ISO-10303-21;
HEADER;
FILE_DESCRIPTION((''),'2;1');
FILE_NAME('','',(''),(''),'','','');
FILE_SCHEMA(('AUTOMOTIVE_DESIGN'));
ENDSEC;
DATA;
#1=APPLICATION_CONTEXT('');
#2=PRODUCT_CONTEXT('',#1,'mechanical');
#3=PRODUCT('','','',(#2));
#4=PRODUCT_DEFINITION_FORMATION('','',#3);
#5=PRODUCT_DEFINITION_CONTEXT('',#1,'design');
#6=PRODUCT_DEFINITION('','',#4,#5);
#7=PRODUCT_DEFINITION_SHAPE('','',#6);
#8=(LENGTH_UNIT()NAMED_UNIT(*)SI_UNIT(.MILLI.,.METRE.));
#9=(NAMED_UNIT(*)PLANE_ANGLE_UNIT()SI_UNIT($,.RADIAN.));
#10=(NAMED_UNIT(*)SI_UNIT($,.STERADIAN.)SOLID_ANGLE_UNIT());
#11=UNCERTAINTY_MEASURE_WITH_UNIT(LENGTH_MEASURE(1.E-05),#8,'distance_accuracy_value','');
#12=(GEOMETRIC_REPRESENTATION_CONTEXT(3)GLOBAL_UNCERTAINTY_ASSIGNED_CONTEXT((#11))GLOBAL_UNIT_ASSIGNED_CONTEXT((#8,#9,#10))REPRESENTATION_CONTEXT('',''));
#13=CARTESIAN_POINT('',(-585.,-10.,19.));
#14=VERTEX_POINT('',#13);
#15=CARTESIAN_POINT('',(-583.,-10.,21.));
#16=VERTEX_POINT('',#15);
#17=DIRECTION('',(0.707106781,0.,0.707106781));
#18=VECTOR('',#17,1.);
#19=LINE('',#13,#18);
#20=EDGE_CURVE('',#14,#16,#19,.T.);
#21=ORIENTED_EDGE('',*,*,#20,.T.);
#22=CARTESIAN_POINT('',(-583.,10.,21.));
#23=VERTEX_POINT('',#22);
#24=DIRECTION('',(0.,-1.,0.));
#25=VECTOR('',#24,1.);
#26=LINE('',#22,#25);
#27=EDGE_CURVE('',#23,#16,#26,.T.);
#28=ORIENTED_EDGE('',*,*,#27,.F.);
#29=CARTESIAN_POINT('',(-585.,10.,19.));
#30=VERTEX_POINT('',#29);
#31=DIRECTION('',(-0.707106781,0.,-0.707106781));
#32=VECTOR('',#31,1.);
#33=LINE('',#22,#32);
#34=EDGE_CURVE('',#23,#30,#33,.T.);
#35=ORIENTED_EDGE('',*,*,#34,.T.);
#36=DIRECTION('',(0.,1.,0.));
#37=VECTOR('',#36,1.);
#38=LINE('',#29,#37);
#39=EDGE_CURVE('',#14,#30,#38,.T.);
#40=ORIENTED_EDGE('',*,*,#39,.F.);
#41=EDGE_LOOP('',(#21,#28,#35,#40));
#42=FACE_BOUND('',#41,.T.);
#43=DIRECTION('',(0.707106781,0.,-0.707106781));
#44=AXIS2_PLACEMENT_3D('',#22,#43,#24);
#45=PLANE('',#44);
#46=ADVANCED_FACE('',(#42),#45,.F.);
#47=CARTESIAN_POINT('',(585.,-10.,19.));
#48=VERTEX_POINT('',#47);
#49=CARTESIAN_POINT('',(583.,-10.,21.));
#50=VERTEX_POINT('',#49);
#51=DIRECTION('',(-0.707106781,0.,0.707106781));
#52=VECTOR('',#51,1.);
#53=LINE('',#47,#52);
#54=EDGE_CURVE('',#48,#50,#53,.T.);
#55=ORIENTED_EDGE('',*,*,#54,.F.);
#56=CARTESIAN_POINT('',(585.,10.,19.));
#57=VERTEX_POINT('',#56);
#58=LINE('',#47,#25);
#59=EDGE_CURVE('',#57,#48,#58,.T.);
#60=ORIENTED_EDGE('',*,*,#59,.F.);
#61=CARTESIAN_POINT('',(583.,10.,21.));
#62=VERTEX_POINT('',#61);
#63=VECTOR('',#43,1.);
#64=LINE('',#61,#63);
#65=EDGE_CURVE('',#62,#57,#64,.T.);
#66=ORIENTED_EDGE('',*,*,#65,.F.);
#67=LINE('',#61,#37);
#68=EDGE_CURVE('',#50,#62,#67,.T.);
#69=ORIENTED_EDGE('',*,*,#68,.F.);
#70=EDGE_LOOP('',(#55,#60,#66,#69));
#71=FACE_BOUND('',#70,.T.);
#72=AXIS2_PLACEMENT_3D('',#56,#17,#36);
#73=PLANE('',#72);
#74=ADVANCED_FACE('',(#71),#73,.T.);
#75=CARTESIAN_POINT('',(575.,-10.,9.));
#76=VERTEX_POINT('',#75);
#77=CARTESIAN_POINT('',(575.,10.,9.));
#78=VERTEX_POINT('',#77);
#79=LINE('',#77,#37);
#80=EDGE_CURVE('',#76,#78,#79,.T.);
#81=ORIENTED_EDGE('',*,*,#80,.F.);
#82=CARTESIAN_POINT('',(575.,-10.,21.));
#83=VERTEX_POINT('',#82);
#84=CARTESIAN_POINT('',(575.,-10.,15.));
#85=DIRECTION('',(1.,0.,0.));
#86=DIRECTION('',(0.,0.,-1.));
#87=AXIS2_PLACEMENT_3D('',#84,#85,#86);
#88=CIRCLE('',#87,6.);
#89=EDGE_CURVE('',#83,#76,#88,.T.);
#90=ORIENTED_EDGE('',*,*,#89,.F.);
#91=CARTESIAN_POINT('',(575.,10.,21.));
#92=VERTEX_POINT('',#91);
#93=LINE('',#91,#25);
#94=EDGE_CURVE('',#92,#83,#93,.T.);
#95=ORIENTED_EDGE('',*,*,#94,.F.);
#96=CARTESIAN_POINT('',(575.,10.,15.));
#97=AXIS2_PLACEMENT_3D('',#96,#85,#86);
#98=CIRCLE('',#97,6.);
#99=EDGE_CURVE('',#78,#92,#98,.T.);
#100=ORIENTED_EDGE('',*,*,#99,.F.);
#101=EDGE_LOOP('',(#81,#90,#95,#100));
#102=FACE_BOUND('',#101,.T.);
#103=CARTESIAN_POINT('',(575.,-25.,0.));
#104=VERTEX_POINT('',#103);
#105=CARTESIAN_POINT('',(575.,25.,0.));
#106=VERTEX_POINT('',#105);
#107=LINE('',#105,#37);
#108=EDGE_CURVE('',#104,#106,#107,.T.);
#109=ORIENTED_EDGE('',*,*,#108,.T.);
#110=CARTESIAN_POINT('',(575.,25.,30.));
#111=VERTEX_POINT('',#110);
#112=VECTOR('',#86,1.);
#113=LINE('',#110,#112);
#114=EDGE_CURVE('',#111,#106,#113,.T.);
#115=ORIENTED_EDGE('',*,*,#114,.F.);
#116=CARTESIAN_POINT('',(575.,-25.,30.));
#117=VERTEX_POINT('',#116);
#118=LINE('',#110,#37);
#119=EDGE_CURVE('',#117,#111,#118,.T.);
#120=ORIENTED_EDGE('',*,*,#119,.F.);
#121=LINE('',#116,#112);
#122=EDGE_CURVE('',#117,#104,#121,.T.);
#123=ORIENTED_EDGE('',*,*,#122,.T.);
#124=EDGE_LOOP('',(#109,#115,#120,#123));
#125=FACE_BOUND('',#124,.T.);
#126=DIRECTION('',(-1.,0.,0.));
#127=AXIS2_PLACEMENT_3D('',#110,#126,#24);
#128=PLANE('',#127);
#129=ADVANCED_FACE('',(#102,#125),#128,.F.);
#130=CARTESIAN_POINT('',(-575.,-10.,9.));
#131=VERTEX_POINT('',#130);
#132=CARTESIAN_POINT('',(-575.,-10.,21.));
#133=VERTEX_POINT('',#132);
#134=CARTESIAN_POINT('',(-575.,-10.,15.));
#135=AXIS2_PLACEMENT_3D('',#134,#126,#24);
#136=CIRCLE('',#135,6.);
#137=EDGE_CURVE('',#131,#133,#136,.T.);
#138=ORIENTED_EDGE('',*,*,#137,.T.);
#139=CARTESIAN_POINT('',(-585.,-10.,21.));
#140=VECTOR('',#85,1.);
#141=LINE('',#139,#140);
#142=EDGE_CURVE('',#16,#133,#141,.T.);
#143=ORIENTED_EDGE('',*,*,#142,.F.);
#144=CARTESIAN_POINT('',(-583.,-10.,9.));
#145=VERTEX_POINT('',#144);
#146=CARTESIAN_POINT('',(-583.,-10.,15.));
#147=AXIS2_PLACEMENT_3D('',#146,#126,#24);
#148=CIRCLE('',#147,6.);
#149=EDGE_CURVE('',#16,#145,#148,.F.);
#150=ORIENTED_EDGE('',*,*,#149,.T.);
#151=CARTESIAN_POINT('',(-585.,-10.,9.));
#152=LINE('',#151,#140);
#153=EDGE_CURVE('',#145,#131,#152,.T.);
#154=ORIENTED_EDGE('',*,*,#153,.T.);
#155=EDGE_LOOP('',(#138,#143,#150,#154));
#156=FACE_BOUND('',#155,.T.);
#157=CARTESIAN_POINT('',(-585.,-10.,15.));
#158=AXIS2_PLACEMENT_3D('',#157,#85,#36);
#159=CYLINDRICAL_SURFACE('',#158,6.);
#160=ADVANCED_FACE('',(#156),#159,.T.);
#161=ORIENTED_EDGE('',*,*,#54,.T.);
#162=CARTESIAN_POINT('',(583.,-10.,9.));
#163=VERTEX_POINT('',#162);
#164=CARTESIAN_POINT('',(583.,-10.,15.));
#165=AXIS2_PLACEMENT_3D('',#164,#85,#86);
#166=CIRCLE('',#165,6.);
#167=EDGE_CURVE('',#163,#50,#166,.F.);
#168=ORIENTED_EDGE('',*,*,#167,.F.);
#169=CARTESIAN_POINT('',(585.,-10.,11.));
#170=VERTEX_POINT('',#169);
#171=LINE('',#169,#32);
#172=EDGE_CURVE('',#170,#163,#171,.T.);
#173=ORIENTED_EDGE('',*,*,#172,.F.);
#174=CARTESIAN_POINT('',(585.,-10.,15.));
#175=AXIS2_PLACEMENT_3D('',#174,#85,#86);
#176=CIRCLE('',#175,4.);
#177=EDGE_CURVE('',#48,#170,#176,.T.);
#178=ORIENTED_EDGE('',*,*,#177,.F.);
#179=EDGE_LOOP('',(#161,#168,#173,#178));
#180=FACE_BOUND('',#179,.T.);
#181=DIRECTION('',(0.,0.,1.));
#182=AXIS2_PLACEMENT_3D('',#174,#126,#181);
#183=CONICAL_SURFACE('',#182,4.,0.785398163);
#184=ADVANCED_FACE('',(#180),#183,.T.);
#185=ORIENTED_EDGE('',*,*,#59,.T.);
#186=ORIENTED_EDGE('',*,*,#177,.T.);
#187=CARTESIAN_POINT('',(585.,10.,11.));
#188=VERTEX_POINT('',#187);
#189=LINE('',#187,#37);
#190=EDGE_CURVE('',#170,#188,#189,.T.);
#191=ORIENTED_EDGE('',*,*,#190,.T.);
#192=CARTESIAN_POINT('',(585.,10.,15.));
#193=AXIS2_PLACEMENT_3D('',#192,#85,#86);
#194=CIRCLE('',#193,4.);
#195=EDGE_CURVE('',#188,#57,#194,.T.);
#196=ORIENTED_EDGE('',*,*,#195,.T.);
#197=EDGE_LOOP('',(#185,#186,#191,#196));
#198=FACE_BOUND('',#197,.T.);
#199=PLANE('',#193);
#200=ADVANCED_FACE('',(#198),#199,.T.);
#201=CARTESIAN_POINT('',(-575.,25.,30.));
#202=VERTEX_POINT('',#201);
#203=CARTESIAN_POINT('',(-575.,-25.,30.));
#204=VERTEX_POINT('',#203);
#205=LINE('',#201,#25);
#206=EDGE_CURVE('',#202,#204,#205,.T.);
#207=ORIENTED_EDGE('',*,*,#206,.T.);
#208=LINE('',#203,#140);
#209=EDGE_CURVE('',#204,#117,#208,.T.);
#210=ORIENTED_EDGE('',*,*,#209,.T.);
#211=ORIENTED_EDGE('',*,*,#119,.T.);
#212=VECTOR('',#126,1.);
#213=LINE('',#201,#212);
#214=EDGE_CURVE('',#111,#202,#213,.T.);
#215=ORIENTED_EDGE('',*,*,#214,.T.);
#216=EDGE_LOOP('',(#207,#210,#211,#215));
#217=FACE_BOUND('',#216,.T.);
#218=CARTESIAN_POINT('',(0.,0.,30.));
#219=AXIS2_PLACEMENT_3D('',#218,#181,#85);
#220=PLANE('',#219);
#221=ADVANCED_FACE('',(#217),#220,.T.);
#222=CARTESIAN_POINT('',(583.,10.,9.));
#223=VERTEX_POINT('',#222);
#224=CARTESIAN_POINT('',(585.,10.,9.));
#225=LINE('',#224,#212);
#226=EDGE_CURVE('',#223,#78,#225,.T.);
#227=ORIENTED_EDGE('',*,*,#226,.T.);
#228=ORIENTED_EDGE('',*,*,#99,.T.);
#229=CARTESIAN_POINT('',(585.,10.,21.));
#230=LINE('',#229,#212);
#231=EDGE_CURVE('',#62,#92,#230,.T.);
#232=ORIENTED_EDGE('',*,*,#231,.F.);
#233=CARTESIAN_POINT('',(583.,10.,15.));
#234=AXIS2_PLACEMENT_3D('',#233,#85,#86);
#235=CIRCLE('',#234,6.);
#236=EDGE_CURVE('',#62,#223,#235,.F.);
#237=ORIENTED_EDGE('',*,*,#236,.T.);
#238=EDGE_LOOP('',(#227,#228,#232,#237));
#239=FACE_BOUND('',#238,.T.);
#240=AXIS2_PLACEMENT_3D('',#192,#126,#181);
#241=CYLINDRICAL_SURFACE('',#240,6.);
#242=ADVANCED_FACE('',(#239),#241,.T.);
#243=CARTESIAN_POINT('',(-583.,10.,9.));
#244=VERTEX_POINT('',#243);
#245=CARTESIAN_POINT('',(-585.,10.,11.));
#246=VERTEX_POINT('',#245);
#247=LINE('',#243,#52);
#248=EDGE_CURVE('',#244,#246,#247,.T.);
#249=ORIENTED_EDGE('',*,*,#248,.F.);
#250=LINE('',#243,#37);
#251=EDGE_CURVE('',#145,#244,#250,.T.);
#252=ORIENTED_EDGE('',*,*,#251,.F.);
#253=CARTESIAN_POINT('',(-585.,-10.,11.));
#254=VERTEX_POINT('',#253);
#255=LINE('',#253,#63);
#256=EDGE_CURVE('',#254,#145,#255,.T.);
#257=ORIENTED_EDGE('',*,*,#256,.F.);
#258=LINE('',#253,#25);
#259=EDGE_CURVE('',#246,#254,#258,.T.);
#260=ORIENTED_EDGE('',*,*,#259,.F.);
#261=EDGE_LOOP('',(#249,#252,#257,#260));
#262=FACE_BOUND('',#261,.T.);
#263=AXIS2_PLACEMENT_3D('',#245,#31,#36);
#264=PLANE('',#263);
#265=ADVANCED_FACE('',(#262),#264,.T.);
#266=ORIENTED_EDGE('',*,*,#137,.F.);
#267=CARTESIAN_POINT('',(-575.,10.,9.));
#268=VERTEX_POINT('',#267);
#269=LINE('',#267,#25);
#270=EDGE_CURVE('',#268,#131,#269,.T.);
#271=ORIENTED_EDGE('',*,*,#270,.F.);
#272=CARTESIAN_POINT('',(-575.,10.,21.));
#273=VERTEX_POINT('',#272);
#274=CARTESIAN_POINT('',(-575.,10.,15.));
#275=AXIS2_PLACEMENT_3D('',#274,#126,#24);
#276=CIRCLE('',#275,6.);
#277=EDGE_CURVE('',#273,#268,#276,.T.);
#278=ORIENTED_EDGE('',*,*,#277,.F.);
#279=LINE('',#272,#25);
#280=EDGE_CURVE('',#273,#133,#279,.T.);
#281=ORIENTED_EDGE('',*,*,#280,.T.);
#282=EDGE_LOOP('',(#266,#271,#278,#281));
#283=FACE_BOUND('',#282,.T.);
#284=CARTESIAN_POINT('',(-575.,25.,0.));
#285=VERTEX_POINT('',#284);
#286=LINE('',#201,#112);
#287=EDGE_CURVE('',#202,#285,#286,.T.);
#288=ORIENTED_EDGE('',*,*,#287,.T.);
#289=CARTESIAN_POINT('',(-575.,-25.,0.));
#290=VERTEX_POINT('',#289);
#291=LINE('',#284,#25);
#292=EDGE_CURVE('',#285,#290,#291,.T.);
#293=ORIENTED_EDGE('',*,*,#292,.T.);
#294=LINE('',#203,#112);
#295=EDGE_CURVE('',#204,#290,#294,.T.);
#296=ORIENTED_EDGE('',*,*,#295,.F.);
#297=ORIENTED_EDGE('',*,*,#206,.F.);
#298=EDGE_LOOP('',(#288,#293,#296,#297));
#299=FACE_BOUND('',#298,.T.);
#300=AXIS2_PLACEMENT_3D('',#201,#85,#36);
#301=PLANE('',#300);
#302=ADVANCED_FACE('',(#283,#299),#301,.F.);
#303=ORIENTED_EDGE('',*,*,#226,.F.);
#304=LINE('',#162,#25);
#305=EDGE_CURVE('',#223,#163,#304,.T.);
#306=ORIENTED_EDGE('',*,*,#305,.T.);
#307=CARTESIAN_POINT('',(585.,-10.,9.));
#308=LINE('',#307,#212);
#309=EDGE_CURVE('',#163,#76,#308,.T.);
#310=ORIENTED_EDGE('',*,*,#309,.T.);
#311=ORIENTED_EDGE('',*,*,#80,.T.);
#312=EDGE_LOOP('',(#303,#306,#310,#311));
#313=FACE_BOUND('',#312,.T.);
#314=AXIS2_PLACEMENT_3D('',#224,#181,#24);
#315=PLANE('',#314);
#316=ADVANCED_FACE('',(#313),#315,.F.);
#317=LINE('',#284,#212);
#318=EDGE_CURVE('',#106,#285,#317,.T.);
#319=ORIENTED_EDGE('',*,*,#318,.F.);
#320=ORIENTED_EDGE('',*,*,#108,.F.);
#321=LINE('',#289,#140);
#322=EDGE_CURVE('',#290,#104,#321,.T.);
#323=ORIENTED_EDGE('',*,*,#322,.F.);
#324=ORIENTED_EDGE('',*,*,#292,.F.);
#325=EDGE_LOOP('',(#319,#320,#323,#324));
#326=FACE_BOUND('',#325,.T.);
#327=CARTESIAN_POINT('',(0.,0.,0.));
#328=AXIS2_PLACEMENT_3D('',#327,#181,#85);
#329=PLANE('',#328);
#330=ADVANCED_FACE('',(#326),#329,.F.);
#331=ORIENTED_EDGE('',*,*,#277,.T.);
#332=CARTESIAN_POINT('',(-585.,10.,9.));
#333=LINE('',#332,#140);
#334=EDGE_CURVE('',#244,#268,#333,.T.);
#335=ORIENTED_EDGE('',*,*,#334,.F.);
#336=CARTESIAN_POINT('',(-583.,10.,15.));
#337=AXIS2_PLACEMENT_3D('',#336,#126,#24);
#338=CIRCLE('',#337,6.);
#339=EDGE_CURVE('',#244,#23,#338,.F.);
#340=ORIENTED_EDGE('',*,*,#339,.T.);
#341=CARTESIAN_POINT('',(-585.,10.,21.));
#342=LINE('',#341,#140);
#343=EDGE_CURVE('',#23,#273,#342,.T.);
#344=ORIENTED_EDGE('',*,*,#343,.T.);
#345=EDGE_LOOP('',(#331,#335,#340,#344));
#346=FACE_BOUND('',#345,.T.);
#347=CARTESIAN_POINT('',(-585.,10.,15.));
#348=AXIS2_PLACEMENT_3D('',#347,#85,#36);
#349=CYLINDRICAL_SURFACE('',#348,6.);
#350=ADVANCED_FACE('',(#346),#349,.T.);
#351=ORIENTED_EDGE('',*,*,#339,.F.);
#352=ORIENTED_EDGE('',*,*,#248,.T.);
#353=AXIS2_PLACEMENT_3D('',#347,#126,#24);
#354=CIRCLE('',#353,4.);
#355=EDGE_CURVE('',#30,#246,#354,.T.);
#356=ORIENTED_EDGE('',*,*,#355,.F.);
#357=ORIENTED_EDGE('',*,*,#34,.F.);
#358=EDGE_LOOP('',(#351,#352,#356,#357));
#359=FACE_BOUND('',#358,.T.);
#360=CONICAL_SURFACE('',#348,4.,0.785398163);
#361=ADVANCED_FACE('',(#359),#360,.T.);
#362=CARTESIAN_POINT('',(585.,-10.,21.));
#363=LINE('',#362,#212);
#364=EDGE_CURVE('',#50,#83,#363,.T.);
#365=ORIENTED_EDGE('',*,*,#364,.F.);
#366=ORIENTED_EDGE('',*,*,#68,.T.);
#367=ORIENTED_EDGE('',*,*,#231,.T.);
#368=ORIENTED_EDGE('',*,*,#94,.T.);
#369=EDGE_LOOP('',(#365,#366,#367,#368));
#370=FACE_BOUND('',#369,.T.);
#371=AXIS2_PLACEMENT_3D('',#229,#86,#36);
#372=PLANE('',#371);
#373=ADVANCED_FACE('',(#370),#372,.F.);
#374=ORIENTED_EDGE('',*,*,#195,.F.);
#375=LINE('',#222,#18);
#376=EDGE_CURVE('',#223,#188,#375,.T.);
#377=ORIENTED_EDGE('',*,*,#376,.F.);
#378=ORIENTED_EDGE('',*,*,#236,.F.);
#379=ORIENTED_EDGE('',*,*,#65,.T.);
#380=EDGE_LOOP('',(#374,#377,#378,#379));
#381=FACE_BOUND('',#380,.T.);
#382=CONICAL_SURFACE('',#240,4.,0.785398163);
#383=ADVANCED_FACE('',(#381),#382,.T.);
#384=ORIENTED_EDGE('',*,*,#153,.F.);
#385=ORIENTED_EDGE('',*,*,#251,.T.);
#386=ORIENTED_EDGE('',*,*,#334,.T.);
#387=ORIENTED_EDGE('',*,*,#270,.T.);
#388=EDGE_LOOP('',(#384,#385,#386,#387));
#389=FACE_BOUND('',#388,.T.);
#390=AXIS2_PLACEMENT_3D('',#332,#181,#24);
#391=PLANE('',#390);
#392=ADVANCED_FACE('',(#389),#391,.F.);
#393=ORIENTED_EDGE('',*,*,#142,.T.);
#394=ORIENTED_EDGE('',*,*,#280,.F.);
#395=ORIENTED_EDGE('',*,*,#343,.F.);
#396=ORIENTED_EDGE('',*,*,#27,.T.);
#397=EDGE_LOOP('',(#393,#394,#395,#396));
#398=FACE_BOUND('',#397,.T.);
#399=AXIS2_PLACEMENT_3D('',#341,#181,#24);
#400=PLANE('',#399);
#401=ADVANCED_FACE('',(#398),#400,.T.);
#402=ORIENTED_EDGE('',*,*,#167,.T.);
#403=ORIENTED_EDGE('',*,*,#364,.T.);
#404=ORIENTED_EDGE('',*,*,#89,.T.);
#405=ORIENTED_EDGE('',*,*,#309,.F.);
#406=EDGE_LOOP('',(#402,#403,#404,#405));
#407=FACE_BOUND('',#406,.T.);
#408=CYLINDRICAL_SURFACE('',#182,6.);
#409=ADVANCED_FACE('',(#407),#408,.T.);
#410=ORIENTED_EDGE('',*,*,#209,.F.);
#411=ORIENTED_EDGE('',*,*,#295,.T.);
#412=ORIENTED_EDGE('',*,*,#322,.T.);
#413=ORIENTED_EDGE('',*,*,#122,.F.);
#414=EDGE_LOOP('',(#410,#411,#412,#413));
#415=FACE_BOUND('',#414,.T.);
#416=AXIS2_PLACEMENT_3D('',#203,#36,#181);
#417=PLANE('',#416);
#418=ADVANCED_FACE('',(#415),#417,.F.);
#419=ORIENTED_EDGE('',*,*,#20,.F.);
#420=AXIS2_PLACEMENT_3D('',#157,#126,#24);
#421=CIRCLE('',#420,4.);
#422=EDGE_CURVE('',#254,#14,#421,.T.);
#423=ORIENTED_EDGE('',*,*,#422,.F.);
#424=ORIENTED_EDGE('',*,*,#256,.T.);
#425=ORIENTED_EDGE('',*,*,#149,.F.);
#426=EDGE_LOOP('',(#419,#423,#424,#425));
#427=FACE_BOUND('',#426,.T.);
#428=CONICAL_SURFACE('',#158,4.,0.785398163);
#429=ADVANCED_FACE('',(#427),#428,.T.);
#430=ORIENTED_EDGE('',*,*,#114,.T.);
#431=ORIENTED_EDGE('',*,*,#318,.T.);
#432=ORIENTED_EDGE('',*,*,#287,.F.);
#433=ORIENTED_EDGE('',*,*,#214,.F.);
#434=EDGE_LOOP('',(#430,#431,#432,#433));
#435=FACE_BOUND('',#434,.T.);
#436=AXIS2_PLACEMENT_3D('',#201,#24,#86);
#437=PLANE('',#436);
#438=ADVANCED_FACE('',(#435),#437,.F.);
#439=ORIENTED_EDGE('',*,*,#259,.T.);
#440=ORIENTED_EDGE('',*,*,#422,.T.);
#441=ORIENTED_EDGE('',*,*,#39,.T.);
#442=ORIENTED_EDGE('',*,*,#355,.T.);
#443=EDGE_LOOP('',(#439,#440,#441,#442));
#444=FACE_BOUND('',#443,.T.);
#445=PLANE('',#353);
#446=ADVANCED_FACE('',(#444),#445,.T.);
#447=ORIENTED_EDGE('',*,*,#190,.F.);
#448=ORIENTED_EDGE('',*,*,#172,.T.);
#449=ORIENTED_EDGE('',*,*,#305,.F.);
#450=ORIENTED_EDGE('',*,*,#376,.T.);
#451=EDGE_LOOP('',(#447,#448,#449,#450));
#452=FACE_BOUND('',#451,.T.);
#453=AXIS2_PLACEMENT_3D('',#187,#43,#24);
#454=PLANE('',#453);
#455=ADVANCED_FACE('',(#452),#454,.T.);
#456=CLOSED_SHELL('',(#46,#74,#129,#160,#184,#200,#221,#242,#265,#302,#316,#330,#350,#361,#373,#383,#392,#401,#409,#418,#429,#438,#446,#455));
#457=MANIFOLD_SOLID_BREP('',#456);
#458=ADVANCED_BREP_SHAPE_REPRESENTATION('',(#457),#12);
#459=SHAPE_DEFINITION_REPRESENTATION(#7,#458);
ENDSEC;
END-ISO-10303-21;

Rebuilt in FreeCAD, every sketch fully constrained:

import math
import FreeCAD as App
import Part
import Sketcher


def edges_at(feature, points):
    """Names of the edges that pass closest to the given points."""
    edges = feature.Shape.Edges
    near = lambda p: min(range(len(edges)), key=lambda i: edges[i].distToShape(Part.Vertex(*p))[0])
    return sorted({f"Edge{near(p) + 1}" for p in points})

doc = App.newDocument("Part")
body = doc.addObject("PartDesign::Body", "Body")

# Sketch on XY plane
sketch1 = doc.addObject("Sketcher::SketchObject", "Sketch")
body.addObject(sketch1)
sketch1.AttachmentSupport = (doc.XY_Plane, [""])
sketch1.MapMode = "FlatFace"
sketch1.addGeometry(Part.LineSegment(App.Vector(-575, 25, 0), App.Vector(-575, -25, 0)), False)
sketch1.addGeometry(Part.LineSegment(App.Vector(-575, -25, 0), App.Vector(575, -25, 0)), False)
sketch1.addGeometry(Part.LineSegment(App.Vector(575, -25, 0), App.Vector(575, 25, 0)), False)
sketch1.addGeometry(Part.LineSegment(App.Vector(575, 25, 0), App.Vector(-575, 25, 0)), False)
sketch1.addConstraint(Sketcher.Constraint("Coincident", 0, 2, 1, 1))
sketch1.addConstraint(Sketcher.Constraint("Coincident", 1, 2, 2, 1))
sketch1.addConstraint(Sketcher.Constraint("Coincident", 2, 2, 3, 1))
sketch1.addConstraint(Sketcher.Constraint("Coincident", 3, 2, 0, 1))
sketch1.addConstraint(Sketcher.Constraint("Vertical", 0))
sketch1.addConstraint(Sketcher.Constraint("Horizontal", 1))
sketch1.addConstraint(Sketcher.Constraint("Vertical", 2))
sketch1.addConstraint(Sketcher.Constraint("Horizontal", 3))
sketch1.addConstraint(Sketcher.Constraint("Symmetric", 0, 2, 2, 2, -1, 1))
sketch1.addConstraint(Sketcher.Constraint("DistanceX", 1, 1, 1, 2, 1150.0))
sketch1.addConstraint(Sketcher.Constraint("DistanceY", 0, 2, 0, 1, 50.0))
pad1 = doc.addObject("PartDesign::Pad", "Pad")
body.addObject(pad1)
pad1.Profile = sketch1
pad1.Length = 30

# Sketch on YZ plane
sketch2 = doc.addObject("Sketcher::SketchObject", "Sketch001")
body.addObject(sketch2)
sketch2.AttachmentSupport = (doc.YZ_Plane, [""])
sketch2.MapMode = "FlatFace"
sketch2.AttachmentOffset = App.Placement(App.Vector(0, 0, 575), App.Rotation())
sketch2.addGeometry(Part.LineSegment(App.Vector(-10, 9, 0), App.Vector(10, 9, 0)), False)
sketch2.addGeometry(Part.ArcOfCircle(Part.Circle(App.Vector(10, 15, 0), App.Vector(0, 0, 1), 6), math.radians(-90), math.radians(90)), False)
sketch2.addGeometry(Part.LineSegment(App.Vector(10, 21, 0), App.Vector(-10, 21, 0)), False)
sketch2.addGeometry(Part.ArcOfCircle(Part.Circle(App.Vector(-10, 15, 0), App.Vector(0, 0, 1), 6), math.radians(90), math.radians(270)), False)
sketch2.addConstraint(Sketcher.Constraint("Tangent", 0, 2, 1, 1))
sketch2.addConstraint(Sketcher.Constraint("Tangent", 1, 2, 2, 1))
sketch2.addConstraint(Sketcher.Constraint("Tangent", 2, 2, 3, 1))
sketch2.addConstraint(Sketcher.Constraint("Tangent", 3, 2, 0, 1))
sketch2.addConstraint(Sketcher.Constraint("Horizontal", 0))
sketch2.addConstraint(Sketcher.Constraint("Horizontal", 2))
sketch2.addConstraint(Sketcher.Constraint("Radius", 1, 6.0))
sketch2.addConstraint(Sketcher.Constraint("DistanceX", 0, 1, 0, 2, 20.0))
sketch2.addConstraint(Sketcher.Constraint("DistanceX", -1, 1, 1, 3, 10.0))
sketch2.addConstraint(Sketcher.Constraint("DistanceY", -1, 1, 1, 3, 15.0))
pad2 = doc.addObject("PartDesign::Pad", "Pad001")
body.addObject(pad2)
pad2.Profile = sketch2
pad2.Length = 10
doc.recompute()

chamfer = doc.addObject("PartDesign::Chamfer", "Chamfer")
body.addObject(chamfer)
chamfer.Base = (pad2, edges_at(pad2, [
    (585, 16, 15),
    (585, 0, 21),
    (585, -16, 15),
    (585, 0, 9),
]))
chamfer.Size = 2

# Sketch on YZ plane
sketch3 = doc.addObject("Sketcher::SketchObject", "Sketch002")
body.addObject(sketch3)
sketch3.AttachmentSupport = (doc.YZ_Plane, [""])
sketch3.MapMode = "FlatFace"
sketch3.AttachmentOffset = App.Placement(App.Vector(0, 0, -575), App.Rotation())
sketch3.addGeometry(Part.LineSegment(App.Vector(-10, 21, 0), App.Vector(10, 21, 0)), False)
sketch3.addGeometry(Part.ArcOfCircle(Part.Circle(App.Vector(10, 15, 0), App.Vector(0, 0, 1), 6), math.radians(-90), math.radians(90)), False)
sketch3.addGeometry(Part.LineSegment(App.Vector(10, 9, 0), App.Vector(-10, 9, 0)), False)
sketch3.addGeometry(Part.ArcOfCircle(Part.Circle(App.Vector(-10, 15, 0), App.Vector(0, 0, 1), 6), math.radians(90), math.radians(270)), False)
sketch3.addConstraint(Sketcher.Constraint("Tangent", 0, 2, 1, 2))
sketch3.addConstraint(Sketcher.Constraint("Tangent", 1, 1, 2, 1))
sketch3.addConstraint(Sketcher.Constraint("Tangent", 2, 2, 3, 2))
sketch3.addConstraint(Sketcher.Constraint("Tangent", 3, 1, 0, 1))
sketch3.addConstraint(Sketcher.Constraint("Horizontal", 0))
sketch3.addConstraint(Sketcher.Constraint("Horizontal", 2))
sketch3.addConstraint(Sketcher.Constraint("Radius", 1, 6.0))
sketch3.addConstraint(Sketcher.Constraint("DistanceX", 0, 1, 0, 2, 20.0))
sketch3.addConstraint(Sketcher.Constraint("DistanceX", -1, 1, 1, 3, 10.0))
sketch3.addConstraint(Sketcher.Constraint("DistanceY", -1, 1, 1, 3, 15.0))
pad3 = doc.addObject("PartDesign::Pad", "Pad002")
body.addObject(pad3)
pad3.Profile = sketch3
pad3.Length = 10
pad3.Reversed = True
doc.recompute()

chamfer2 = doc.addObject("PartDesign::Chamfer", "Chamfer001")
body.addObject(chamfer2)
chamfer2.Base = (pad3, edges_at(pad3, [
    (-585, 0, 21),
    (-585, 16, 15),
    (-585, 0, 9),
    (-585, -16, 15),
]))
chamfer2.Size = 2

doc.recompute()
